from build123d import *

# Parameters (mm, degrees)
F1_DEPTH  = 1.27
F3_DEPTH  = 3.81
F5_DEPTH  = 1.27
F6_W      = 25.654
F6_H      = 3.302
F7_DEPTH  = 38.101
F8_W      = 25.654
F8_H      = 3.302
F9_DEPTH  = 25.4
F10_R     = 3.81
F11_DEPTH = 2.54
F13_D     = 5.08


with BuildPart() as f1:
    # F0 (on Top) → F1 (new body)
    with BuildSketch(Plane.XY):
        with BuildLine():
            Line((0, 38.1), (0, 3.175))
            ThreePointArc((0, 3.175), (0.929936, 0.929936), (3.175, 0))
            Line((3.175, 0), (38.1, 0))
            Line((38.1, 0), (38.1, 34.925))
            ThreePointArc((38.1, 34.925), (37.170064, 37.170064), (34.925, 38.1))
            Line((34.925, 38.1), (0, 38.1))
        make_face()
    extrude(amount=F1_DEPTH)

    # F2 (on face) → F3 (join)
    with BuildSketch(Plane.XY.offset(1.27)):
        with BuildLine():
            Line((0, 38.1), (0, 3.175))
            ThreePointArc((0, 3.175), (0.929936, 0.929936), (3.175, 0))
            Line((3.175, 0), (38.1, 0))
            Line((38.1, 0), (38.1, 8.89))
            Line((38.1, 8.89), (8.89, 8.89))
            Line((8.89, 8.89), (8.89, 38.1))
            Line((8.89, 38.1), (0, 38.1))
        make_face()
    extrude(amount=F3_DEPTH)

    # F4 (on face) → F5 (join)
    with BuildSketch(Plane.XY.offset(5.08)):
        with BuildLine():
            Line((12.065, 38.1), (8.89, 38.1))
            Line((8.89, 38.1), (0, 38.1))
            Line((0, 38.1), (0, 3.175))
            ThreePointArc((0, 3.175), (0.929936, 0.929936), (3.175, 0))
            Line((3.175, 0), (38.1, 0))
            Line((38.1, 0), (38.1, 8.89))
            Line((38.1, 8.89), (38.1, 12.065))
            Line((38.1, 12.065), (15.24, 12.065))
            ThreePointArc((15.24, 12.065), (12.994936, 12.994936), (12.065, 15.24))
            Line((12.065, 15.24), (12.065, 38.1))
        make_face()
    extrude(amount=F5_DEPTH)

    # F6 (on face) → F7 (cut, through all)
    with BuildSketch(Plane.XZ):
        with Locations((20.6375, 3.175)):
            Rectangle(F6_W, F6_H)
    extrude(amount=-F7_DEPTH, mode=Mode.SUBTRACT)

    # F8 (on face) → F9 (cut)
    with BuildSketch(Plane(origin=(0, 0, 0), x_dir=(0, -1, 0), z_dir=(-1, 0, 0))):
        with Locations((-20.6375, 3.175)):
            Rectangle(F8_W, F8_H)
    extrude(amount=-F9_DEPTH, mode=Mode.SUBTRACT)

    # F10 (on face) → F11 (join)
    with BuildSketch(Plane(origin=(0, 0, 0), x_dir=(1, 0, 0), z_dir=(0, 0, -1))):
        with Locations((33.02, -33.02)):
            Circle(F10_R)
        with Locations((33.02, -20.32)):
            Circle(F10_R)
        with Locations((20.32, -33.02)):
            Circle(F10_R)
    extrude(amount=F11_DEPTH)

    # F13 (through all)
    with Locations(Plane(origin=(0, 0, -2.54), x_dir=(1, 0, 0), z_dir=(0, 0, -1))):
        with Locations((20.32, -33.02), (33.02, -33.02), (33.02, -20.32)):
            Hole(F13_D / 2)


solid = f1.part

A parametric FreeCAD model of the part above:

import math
import FreeCAD as App
import Part
import Sketcher
Q = App.Units.Quantity

doc = App.newDocument("Part")
body = doc.addObject("PartDesign::Body", "Body")

sketch1 = doc.addObject("Sketcher::SketchObject", "Sketch")
body.addObject(sketch1)
sketch1.AttachmentSupport = (doc.XY_Plane, [""])
sketch1.MapMode = "FlatFace"
sketch1.addGeometry(Part.LineSegment(App.Vector(0, 38.1, 0), App.Vector(0, 3.175, 0)), False)
sketch1.addGeometry(Part.ArcOfCircle(Part.Circle(App.Vector(3.175, 3.175, 0), App.Vector(0, 0, 1), 3.175), math.radians(-179.999998), math.radians(-90.000002)), False)
sketch1.addGeometry(Part.LineSegment(App.Vector(3.175, 0, 0), App.Vector(38.1, 0, 0)), False)
sketch1.addGeometry(Part.LineSegment(App.Vector(38.1, 0, 0), App.Vector(38.1, 34.925, 0)), False)
sketch1.addGeometry(Part.ArcOfCircle(Part.Circle(App.Vector(34.925, 34.925, 0), App.Vector(0, 0, 1), 3.175), math.radians(0.000002), math.radians(89.999998)), False)
sketch1.addGeometry(Part.LineSegment(App.Vector(34.925, 38.1, 0), App.Vector(0, 38.1, 0)), False)
sketch1.addConstraint(Sketcher.Constraint("Tangent", 0, 2, 1, 1))
sketch1.addConstraint(Sketcher.Constraint("Tangent", 1, 2, 2, 1))
sketch1.addConstraint(Sketcher.Constraint("Coincident", 2, 2, 3, 1))
sketch1.addConstraint(Sketcher.Constraint("Tangent", 3, 2, 4, 1))
sketch1.addConstraint(Sketcher.Constraint("Tangent", 4, 2, 5, 1))
sketch1.addConstraint(Sketcher.Constraint("Coincident", 5, 2, 0, 1))
sketch1.addConstraint(Sketcher.Constraint("Vertical", 0))
sketch1.addConstraint(Sketcher.Constraint("Horizontal", 2))
sketch1.addConstraint(Sketcher.Constraint("Vertical", 3))
sketch1.addConstraint(Sketcher.Constraint("Horizontal", 5))
sketch1.addConstraint(Sketcher.Constraint("Equal", 1, 4))
sketch1.addConstraint(Sketcher.Constraint("PointOnObject", 0, 2, -2))
sketch1.addConstraint(Sketcher.Constraint("PointOnObject", 1, 2, -1))
sketch1.addConstraint(Sketcher.Constraint("Equal", 5, 0))
sketch1.addConstraint(Sketcher.Constraint("Radius", 1, Q("0.125 in")))
sketch1.addConstraint(Sketcher.Constraint("DistanceX", -1, 1, 2, 2, Q("1.5 in")))
pad1 = doc.addObject("PartDesign::Pad", "Pad")
body.addObject(pad1)
pad1.Profile = sketch1
pad1.Length = Q("0.05 in")

sketch2 = doc.addObject("Sketcher::SketchObject", "Sketch001")
body.addObject(sketch2)
sketch2.AttachmentSupport = (doc.XY_Plane, [""])
sketch2.MapMode = "FlatFace"
sketch2.AttachmentOffset = App.Placement(App.Vector(0, 0, 0.05 * 25.4), App.Rotation())
sketch2.addGeometry(Part.LineSegment(App.Vector(0, 38.1, 0), App.Vector(0, 3.175, 0)), False)
sketch2.addGeometry(Part.ArcOfCircle(Part.Circle(App.Vector(3.175, 3.175, 0), App.Vector(0, 0, 1), 3.175), math.radians(-179.999998), math.radians(-90.000002)), False)
sketch2.addGeometry(Part.LineSegment(App.Vector(3.175, 0, 0), App.Vector(38.1, 0, 0)), False)
sketch2.addGeometry(Part.LineSegment(App.Vector(38.1, 0, 0), App.Vector(38.1, 8.89, 0)), False)
sketch2.addGeometry(Part.LineSegment(App.Vector(38.1, 8.89, 0), App.Vector(8.89, 8.89, 0)), False)
sketch2.addGeometry(Part.LineSegment(App.Vector(8.89, 8.89, 0), App.Vector(8.89, 38.1, 0)), False)
sketch2.addGeometry(Part.LineSegment(App.Vector(8.89, 38.1, 0), App.Vector(0, 38.1, 0)), False)
sketch2.addConstraint(Sketcher.Constraint("Tangent", 0, 2, 1, 1))
sketch2.addConstraint(Sketcher.Constraint("Tangent", 1, 2, 2, 1))
sketch2.addConstraint(Sketcher.Constraint("Coincident", 2, 2, 3, 1))
sketch2.addConstraint(Sketcher.Constraint("Coincident", 3, 2, 4, 1))
sketch2.addConstraint(Sketcher.Constraint("Coincident", 4, 2, 5, 1))
sketch2.addConstraint(Sketcher.Constraint("Coincident", 5, 2, 6, 1))
sketch2.addConstraint(Sketcher.Constraint("Coincident", 6, 2, 0, 1))
sketch2.addConstraint(Sketcher.Constraint("Vertical", 0))
sketch2.addConstraint(Sketcher.Constraint("Horizontal", 2))
sketch2.addConstraint(Sketcher.Constraint("Vertical", 3))
sketch2.addConstraint(Sketcher.Constraint("Horizontal", 4))
sketch2.addConstraint(Sketcher.Constraint("Vertical", 5))
sketch2.addConstraint(Sketcher.Constraint("Horizontal", 6))
sketch2.addConstraint(Sketcher.Constraint("PointOnObject", 0, 2, -2))
sketch2.addConstraint(Sketcher.Constraint("PointOnObject", 1, 2, -1))
sketch2.addConstraint(Sketcher.Constraint("Equal", 2, 0))
sketch2.addConstraint(Sketcher.Constraint("Equal", 6, 3))
sketch2.addConstraint(Sketcher.Constraint("Radius", 1, Q("0.125 in")))
sketch2.addConstraint(Sketcher.Constraint("DistanceX", 4, 2, 4, 1, Q("1.15 in")))
sketch2.addConstraint(Sketcher.Constraint("DistanceX", 6, 2, 6, 1, Q("0.35 in")))
pad2 = doc.addObject("PartDesign::Pad", "Pad001")
body.addObject(pad2)
pad2.Profile = sketch2
pad2.Length = Q("0.15 in")

sketch3 = doc.addObject("Sketcher::SketchObject", "Sketch002")
body.addObject(sketch3)
sketch3.AttachmentSupport = (doc.XY_Plane, [""])
sketch3.MapMode = "FlatFace"
sketch3.AttachmentOffset = App.Placement(App.Vector(0, 0, 0.2 * 25.4), App.Rotation())
sketch3.addGeometry(Part.LineSegment(App.Vector(12.065, 38.1, 0), App.Vector(0, 38.1, 0)), False)
sketch3.addGeometry(Part.LineSegment(App.Vector(0, 38.1, 0), App.Vector(0, 3.175, 0)), False)
sketch3.addGeometry(Part.ArcOfCircle(Part.Circle(App.Vector(3.175, 3.175, 0), App.Vector(0, 0, 1), 3.175), math.radians(-179.999998), math.radians(-90.000002)), False)
sketch3.addGeometry(Part.LineSegment(App.Vector(3.175, 0, 0), App.Vector(38.1, 0, 0)), False)
sketch3.addGeometry(Part.LineSegment(App.Vector(38.1, 0, 0), App.Vector(38.1, 12.065, 0)), False)
sketch3.addGeometry(Part.LineSegment(App.Vector(38.1, 12.065, 0), App.Vector(15.24, 12.065, 0)), False)
sketch3.addGeometry(Part.ArcOfCircle(Part.Circle(App.Vector(15.24, 15.24, 0), App.Vector(0, 0, 1), 3.175), math.radians(-179.999998), math.radians(-90.000002)), False)
sketch3.addGeometry(Part.LineSegment(App.Vector(12.065, 15.24, 0), App.Vector(12.065, 38.1, 0)), False)
sketch3.addConstraint(Sketcher.Constraint("Coincident", 0, 2, 1, 1))
sketch3.addConstraint(Sketcher.Constraint("Tangent", 1, 2, 2, 1))
sketch3.addConstraint(Sketcher.Constraint("Tangent", 2, 2, 3, 1))
sketch3.addConstraint(Sketcher.Constraint("Coincident", 3, 2, 4, 1))
sketch3.addConstraint(Sketcher.Constraint("Coincident", 4, 2, 5, 1))
sketch3.addConstraint(Sketcher.Constraint("Tangent", 5, 2, 6, 2))
sketch3.addConstraint(Sketcher.Constraint("Tangent", 6, 1, 7, 1))
sketch3.addConstraint(Sketcher.Constraint("Coincident", 7, 2, 0, 1))
sketch3.addConstraint(Sketcher.Constraint("Horizontal", 0))
sketch3.addConstraint(Sketcher.Constraint("Vertical", 1))
sketch3.addConstraint(Sketcher.Constraint("Horizontal", 3))
sketch3.addConstraint(Sketcher.Constraint("Vertical", 4))
sketch3.addConstraint(Sketcher.Constraint("Horizontal", 5))
sketch3.addConstraint(Sketcher.Constraint("Vertical", 7))
sketch3.addConstraint(Sketcher.Constraint("Equal", 2, 6))
sketch3.addConstraint(Sketcher.Constraint("PointOnObject", 0, 2, -2))
sketch3.addConstraint(Sketcher.Constraint("PointOnObject", 2, 2, -1))
sketch3.addConstraint(Sketcher.Constraint("Equal", 3, 1))
sketch3.addConstraint(Sketcher.Constraint("Equal", 0, 4))
sketch3.addConstraint(Sketcher.Constraint("DistanceX", 5, 2, 5, 1, Q("0.9 in")))
sketch3.addConstraint(Sketcher.Constraint("Radius", 2, Q("0.125 in")))
sketch3.addConstraint(Sketcher.Constraint("DistanceX", -1, 1, 6, 3, Q("0.6 in")))
pad3 = doc.addObject("PartDesign::Pad", "Pad002")
body.addObject(pad3)
pad3.Profile = sketch3
pad3.Length = Q("0.05 in")

sketch4 = doc.addObject("Sketcher::SketchObject", "Sketch003")
body.addObject(sketch4)
sketch4.AttachmentSupport = (doc.XZ_Plane, [""])
sketch4.MapMode = "FlatFace"
sketch4.addGeometry(Part.LineSegment(App.Vector(7.8105, 4.826, 0), App.Vector(7.8105, 1.524, 0)), False)
sketch4.addGeometry(Part.LineSegment(App.Vector(7.8105, 1.524, 0), App.Vector(33.4645, 1.524, 0)), False)
sketch4.addGeometry(Part.LineSegment(App.Vector(33.4645, 1.524, 0), App.Vector(33.4645, 4.826, 0)), False)
sketch4.addGeometry(Part.LineSegment(App.Vector(33.4645, 4.826, 0), App.Vector(7.8105, 4.826, 0)), False)
sketch4.addConstraint(Sketcher.Constraint("Coincident", 0, 2, 1, 1))
sketch4.addConstraint(Sketcher.Constraint("Coincident", 1, 2, 2, 1))
sketch4.addConstraint(Sketcher.Constraint("Coincident", 2, 2, 3, 1))
sketch4.addConstraint(Sketcher.Constraint("Coincident", 3, 2, 0, 1))
sketch4.addConstraint(Sketcher.Constraint("Vertical", 0))
sketch4.addConstraint(Sketcher.Constraint("Horizontal", 1))
sketch4.addConstraint(Sketcher.Constraint("Vertical", 2))
sketch4.addConstraint(Sketcher.Constraint("Horizontal", 3))
sketch4.addConstraint(Sketcher.Constraint("DistanceX", 1, 1, 1, 2, Q("1.01 in")))
sketch4.addConstraint(Sketcher.Constraint("DistanceY", 0, 2, 0, 1, Q("0.13 in")))
sketch4.addConstraint(Sketcher.Constraint("DistanceY", -1, 1, 0, 2, Q("0.06 in")))
sketch4.addConstraint(Sketcher.Constraint("DistanceX", -1, 1, 0, 2, Q("0.3075 in")))
pocket1 = doc.addObject("PartDesign::Pocket", "Pocket")
body.addObject(pocket1)
pocket1.Profile = sketch4
pocket1.Type = "ThroughAll"

sketch5 = doc.addObject("Sketcher::SketchObject", "Sketch004")
body.addObject(sketch5)
sketch5.AttachmentSupport = (doc.YZ_Plane, [""])
sketch5.MapMode = "FlatFace"
sketch5.addGeometry(Part.LineSegment(App.Vector(33.4645, 4.826, 0), App.Vector(33.4645, 1.524, 0)), False)
sketch5.addGeometry(Part.LineSegment(App.Vector(33.4645, 1.524, 0), App.Vector(7.8105, 1.524, 0)), False)
sketch5.addGeometry(Part.LineSegment(App.Vector(7.8105, 1.524, 0), App.Vector(7.8105, 4.826, 0)), False)
sketch5.addGeometry(Part.LineSegment(App.Vector(7.8105, 4.826, 0), App.Vector(33.4645, 4.826, 0)), False)
sketch5.addConstraint(Sketcher.Constraint("Coincident", 0, 2, 1, 1))
sketch5.addConstraint(Sketcher.Constraint("Coincident", 1, 2, 2, 1))
sketch5.addConstraint(Sketcher.Constraint("Coincident", 2, 2, 3, 1))
sketch5.addConstraint(Sketcher.Constraint("Coincident", 3, 2, 0, 1))
sketch5.addConstraint(Sketcher.Constraint("Vertical", 0))
sketch5.addConstraint(Sketcher.Constraint("Horizontal", 1))
sketch5.addConstraint(Sketcher.Constraint("Vertical", 2))
sketch5.addConstraint(Sketcher.Constraint("Horizontal", 3))
sketch5.addConstraint(Sketcher.Constraint("DistanceX", 1, 2, 1, 1, Q("1.01 in")))
sketch5.addConstraint(Sketcher.Constraint("DistanceY", 0, 2, 0, 1, Q("0.13 in")))
sketch5.addConstraint(Sketcher.Constraint("DistanceY", -1, 1, 0, 2, Q("0.06 in")))
sketch5.addConstraint(Sketcher.Constraint("DistanceX", -1, 1, 0, 2, Q("1.3175 in")))
pocket2 = doc.addObject("PartDesign::Pocket", "Pocket001")
body.addObject(pocket2)
pocket2.Profile = sketch5
pocket2.Length = Q("1 in")
pocket2.Reversed = True

sketch6 = doc.addObject("Sketcher::SketchObject", "Sketch005")
body.addObject(sketch6)
sketch6.AttachmentSupport = (doc.XY_Plane, [""])
sketch6.MapMode = "FlatFace"
sketch6.addGeometry(Part.Circle(App.Vector(33.02, 33.02, 0), App.Vector(0, 0, 1), 3.81), False)
sketch6.addGeometry(Part.Circle(App.Vector(33.02, 20.32, 0), App.Vector(0, 0, 1), 3.81), False)
sketch6.addGeometry(Part.Circle(App.Vector(20.32, 33.02, 0), App.Vector(0, 0, 1), 3.81), False)
sketch6.addConstraint(Sketcher.Constraint("Equal", 0, 1))
sketch6.addConstraint(Sketcher.Constraint("Equal", 1, 2))
sketch6.addConstraint(Sketcher.Constraint("Horizontal", 0, 3, 2, 3))
sketch6.addConstraint(Sketcher.Constraint("Vertical", 0, 3, 1, 3))
sketch6.addConstraint(Sketcher.Constraint("Diameter", 0, Q("0.3 in")))
sketch6.addConstraint(Sketcher.Constraint("DistanceX", -1, 1, 0, 3, Q("1.3 in")))
sketch6.addConstraint(Sketcher.Constraint("DistanceY", -1, 1, 0, 3, Q("1.3 in")))
sketch6.addConstraint(Sketcher.Constraint("DistanceY", -1, 1, 1, 3, Q("0.8 in")))
sketch6.addConstraint(Sketcher.Constraint("DistanceX", -1, 1, 2, 3, Q("0.8 in")))
pad4 = doc.addObject("PartDesign::Pad", "Pad003")
body.addObject(pad4)
pad4.Profile = sketch6
pad4.Length = Q("0.1 in")
pad4.Reversed = True

sketch7 = doc.addObject("Sketcher::SketchObject", "Sketch006")
body.addObject(sketch7)
sketch7.AttachmentSupport = (doc.XY_Plane, [""])
sketch7.MapMode = "FlatFace"
sketch7.AttachmentOffset = App.Placement(App.Vector(0, 0, -0.1 * 25.4), App.Rotation())
sketch7.addGeometry(Part.Circle(App.Vector(20.32, 33.02, 0), App.Vector(0, 0, 1), 2.54), False)
sketch7.addGeometry(Part.Circle(App.Vector(33.02, 33.02, 0), App.Vector(0, 0, 1), 2.54), False)
sketch7.addGeometry(Part.Circle(App.Vector(33.02, 20.32, 0), App.Vector(0, 0, 1), 2.54), False)
sketch7.addConstraint(Sketcher.Constraint("Equal", 0, 1))
sketch7.addConstraint(Sketcher.Constraint("Equal", 1, 2))
sketch7.addConstraint(Sketcher.Constraint("Horizontal", 0, 3, 1, 3))
sketch7.addConstraint(Sketcher.Constraint("Vertical", 1, 3, 2, 3))
sketch7.addConstraint(Sketcher.Constraint("Diameter", 0, Q("0.2 in")))
sketch7.addConstraint(Sketcher.Constraint("DistanceX", -1, 1, 0, 3, Q("0.8 in")))
sketch7.addConstraint(Sketcher.Constraint("DistanceY", -1, 1, 0, 3, Q("1.3 in")))
sketch7.addConstraint(Sketcher.Constraint("DistanceX", -1, 1, 1, 3, Q("1.3 in")))
sketch7.addConstraint(Sketcher.Constraint("DistanceY", -1, 1, 2, 3, Q("0.8 in")))
doc.recompute()
hole = doc.addObject("PartDesign::Hole", "Hole")
body.addObject(hole)
hole.Profile = sketch7
hole.ThreadType = "None"
hole.Diameter = Q("0.2 in")
hole.DepthType = "ThroughAll"
hole.Reversed = True

doc.recompute()
